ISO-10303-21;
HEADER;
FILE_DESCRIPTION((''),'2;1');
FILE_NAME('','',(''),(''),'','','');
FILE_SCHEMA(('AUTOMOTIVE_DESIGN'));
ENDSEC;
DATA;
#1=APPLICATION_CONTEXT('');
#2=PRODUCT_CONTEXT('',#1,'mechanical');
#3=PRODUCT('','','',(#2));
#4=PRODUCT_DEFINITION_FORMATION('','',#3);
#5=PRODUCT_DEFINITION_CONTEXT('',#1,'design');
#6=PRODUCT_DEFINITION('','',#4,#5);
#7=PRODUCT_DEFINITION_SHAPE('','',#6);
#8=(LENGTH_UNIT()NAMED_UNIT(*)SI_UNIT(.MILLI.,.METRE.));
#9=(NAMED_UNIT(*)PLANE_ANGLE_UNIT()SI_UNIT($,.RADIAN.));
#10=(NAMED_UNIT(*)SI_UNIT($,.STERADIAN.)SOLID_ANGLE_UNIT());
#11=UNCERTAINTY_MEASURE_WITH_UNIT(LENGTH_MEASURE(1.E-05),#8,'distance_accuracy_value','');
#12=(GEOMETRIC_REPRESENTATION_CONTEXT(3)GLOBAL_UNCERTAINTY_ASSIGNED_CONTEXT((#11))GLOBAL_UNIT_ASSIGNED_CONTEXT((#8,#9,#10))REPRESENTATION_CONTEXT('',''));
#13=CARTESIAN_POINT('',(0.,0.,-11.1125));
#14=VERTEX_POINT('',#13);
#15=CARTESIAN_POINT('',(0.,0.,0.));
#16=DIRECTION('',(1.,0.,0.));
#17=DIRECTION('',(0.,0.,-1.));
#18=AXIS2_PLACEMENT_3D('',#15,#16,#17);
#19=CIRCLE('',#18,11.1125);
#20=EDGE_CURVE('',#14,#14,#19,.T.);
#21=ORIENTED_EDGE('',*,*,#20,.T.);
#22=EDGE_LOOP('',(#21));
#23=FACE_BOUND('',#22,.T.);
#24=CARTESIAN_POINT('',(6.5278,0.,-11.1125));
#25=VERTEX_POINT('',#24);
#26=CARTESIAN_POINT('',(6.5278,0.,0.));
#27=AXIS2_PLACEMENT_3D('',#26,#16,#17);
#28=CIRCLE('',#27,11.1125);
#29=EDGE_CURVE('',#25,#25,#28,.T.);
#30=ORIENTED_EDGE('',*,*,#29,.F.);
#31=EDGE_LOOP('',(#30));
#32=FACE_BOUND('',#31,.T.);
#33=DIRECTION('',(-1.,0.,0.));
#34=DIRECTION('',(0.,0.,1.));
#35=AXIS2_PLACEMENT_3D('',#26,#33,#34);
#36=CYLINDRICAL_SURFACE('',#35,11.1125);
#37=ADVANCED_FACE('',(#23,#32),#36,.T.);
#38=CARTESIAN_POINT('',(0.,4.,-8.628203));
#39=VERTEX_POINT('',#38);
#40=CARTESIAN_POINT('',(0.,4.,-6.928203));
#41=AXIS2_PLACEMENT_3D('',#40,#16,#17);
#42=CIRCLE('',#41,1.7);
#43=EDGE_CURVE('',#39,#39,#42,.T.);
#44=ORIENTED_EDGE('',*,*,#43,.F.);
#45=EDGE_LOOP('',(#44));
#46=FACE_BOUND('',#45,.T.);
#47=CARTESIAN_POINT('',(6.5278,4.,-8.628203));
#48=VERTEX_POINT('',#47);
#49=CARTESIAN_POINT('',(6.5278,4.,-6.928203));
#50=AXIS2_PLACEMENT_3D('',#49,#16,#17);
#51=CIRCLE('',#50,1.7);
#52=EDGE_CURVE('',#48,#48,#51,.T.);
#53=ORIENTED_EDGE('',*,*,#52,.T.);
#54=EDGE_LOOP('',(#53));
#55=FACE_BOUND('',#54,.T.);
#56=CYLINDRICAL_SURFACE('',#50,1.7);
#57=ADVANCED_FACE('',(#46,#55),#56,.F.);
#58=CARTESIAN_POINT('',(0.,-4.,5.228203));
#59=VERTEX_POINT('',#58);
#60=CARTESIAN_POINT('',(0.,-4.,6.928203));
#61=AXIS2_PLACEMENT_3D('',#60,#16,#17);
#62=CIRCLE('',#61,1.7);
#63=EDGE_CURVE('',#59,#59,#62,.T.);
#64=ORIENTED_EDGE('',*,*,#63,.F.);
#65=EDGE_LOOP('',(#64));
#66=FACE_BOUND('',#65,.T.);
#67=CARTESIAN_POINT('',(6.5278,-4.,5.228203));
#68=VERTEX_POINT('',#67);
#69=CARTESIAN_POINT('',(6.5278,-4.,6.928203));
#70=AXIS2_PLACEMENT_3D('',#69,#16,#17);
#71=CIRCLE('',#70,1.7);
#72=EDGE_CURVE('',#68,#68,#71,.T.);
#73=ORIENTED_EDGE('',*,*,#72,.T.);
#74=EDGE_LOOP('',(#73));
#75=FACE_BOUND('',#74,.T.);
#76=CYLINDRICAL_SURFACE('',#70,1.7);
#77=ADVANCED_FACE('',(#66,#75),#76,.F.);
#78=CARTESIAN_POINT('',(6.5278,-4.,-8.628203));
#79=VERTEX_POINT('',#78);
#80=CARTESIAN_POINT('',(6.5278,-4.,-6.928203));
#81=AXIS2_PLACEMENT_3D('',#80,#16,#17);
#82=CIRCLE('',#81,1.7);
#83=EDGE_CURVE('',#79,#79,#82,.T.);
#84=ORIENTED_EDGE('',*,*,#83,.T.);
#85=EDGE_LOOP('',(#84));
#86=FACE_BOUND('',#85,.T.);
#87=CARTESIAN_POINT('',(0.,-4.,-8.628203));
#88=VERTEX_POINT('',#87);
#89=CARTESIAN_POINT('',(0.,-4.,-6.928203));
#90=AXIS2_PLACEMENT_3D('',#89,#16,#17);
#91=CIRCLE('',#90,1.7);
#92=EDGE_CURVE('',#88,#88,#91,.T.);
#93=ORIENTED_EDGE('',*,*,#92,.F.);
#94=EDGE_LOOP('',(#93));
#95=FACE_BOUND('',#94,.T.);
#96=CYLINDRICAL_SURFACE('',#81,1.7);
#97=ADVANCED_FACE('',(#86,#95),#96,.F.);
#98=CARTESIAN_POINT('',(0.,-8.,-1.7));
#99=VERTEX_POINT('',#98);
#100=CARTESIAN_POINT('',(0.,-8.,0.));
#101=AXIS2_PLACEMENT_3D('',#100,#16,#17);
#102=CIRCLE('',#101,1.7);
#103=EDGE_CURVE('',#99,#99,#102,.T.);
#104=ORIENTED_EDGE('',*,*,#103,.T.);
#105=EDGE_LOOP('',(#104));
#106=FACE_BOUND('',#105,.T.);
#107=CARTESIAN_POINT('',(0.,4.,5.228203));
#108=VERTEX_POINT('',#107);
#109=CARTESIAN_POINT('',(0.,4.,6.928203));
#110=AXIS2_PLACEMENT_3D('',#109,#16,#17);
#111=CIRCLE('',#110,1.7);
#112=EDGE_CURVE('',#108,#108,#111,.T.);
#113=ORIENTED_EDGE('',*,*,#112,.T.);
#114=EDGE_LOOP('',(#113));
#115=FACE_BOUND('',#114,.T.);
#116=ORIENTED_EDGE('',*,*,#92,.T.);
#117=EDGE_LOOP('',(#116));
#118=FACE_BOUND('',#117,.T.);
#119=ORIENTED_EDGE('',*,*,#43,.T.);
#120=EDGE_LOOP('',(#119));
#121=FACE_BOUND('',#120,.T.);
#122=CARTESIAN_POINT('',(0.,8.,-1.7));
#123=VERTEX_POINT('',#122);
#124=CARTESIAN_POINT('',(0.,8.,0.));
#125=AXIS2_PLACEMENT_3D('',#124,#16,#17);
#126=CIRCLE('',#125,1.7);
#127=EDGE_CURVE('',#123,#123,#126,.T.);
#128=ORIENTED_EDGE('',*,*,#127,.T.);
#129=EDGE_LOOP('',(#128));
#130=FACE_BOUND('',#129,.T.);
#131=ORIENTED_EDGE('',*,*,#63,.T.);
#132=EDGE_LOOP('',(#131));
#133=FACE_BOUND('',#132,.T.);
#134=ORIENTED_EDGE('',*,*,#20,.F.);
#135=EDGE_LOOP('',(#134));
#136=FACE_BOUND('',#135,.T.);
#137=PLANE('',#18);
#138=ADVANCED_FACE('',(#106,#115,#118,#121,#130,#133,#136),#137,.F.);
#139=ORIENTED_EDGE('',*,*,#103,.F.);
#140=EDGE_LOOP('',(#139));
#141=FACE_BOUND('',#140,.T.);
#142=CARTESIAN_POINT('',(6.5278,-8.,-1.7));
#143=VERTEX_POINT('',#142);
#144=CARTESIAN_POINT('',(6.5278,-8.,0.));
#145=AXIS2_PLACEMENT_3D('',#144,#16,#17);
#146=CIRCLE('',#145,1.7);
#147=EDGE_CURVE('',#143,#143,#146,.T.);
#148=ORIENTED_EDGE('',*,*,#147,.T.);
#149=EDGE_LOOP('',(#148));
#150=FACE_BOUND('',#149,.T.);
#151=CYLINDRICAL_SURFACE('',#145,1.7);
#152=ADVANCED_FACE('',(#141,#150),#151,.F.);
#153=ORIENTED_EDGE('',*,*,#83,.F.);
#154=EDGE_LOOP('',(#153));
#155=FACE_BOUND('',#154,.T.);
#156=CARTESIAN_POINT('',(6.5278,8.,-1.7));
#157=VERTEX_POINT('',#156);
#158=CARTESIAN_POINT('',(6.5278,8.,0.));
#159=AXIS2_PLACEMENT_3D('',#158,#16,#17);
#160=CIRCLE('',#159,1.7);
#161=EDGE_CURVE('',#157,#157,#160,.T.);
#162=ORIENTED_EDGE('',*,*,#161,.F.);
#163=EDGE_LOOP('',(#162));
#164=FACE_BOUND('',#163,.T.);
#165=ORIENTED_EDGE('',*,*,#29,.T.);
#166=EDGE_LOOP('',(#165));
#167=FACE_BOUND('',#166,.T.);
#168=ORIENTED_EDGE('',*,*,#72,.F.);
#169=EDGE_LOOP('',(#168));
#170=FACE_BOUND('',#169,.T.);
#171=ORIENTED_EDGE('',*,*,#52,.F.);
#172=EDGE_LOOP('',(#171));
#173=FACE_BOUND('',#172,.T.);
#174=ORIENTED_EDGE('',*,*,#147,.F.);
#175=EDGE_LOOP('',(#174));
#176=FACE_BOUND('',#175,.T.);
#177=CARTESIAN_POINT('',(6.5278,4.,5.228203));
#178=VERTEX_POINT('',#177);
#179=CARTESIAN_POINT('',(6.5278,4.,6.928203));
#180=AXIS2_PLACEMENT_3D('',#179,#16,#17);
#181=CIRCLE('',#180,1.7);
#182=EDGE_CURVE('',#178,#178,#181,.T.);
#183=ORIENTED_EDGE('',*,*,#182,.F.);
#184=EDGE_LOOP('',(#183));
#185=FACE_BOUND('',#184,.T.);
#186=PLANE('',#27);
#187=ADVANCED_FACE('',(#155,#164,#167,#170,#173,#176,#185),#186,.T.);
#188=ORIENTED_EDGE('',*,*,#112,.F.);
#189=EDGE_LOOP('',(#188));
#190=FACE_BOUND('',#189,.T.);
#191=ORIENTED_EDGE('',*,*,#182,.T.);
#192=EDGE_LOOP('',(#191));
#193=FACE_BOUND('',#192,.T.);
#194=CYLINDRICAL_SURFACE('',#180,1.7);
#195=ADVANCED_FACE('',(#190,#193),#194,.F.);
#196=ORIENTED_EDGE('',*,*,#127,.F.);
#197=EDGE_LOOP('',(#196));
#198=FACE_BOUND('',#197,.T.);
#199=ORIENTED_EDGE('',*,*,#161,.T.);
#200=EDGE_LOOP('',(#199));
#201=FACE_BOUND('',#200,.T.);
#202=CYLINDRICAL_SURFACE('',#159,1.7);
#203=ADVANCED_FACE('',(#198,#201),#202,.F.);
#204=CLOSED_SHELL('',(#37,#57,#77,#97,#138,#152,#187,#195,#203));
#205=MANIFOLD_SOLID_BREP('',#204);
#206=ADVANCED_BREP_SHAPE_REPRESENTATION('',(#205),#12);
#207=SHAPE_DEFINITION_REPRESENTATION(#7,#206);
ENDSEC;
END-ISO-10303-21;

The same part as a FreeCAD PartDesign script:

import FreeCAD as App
import Part
import Sketcher
Q = App.Units.Quantity

doc = App.newDocument("Part")
body = doc.addObject("PartDesign::Body", "Body")

sketch1 = body.newObject("Sketcher::SketchObject", "Sketch")
sketch1.AttachmentSupport = (doc.getObject("YZ_Plane"), [""])
sketch1.MapMode = "FlatFace"
sketch1.addGeometry(Part.Circle(App.Vector(0, 0, 0), App.Vector(0, 0, 1), 11), False)
sketch1.addConstraint([
    Sketcher.Constraint("Coincident", 0, 3, -1, 1),
    Sketcher.Constraint("Diameter", 0, Q("0.875 in")),
])
pad1 = body.newObject("PartDesign::Pad", "Pad")
pad1.Profile = sketch1
pad1.Length = Q("0.257 in")

sketch2 = body.newObject("Sketcher::SketchObject", "Sketch001")
sketch2.AttachmentSupport = (doc.getObject("YZ_Plane"), [""])
sketch2.MapMode = "FlatFace"
sketch2.AttachmentOffset = App.Placement(App.Vector(0, 0, 0.257 * 25.4), App.Rotation())
sketch2.addGeometry([
    Part.Circle(App.Vector(8, 0, 0), App.Vector(0, 0, 1), 1.7),
    Part.Circle(App.Vector(4, -6.9, 0), App.Vector(0, 0, 1), 1.7),
    Part.Circle(App.Vector(-4, -6.9, 0), App.Vector(0, 0, 1), 1.7),
    Part.Circle(App.Vector(-8, 0, 0), App.Vector(0, 0, 1), 1.7),
    Part.Circle(App.Vector(-4, 6.9, 0), App.Vector(0, 0, 1), 1.7),
    Part.Circle(App.Vector(4, 6.9, 0), App.Vector(0, 0, 1), 1.7),
], False)
sketch2.addConstraint([
    Sketcher.Constraint("Equal", 0, 1),
    Sketcher.Constraint("Equal", 1, 2),
    Sketcher.Constraint("Equal", 2, 3),
    Sketcher.Constraint("Equal", 3, 4),
    Sketcher.Constraint("Equal", 4, 5),
    Sketcher.Constraint("Symmetric", 0, 3, 3, 3, -1, 1),
    Sketcher.Constraint("Symmetric", 1, 3, 4, 3, -1, 1),
    Sketcher.Constraint("Symmetric", 2, 3, 5, 3, -1, 1),
    Sketcher.Constraint("Symmetric", 1, 3, 2, 3, -2),
    Sketcher.Constraint("PointOnObject", 0, 3, -1),
    Sketcher.Constraint("Diameter", 0, 3.4),
    Sketcher.Constraint("DistanceX", -1, 1, 0, 3, 8.0),
    Sketcher.Constraint("DistanceX", -1, 1, 1, 3, 4.0),
    Sketcher.Constraint("DistanceY", 1, 3, -1, 1, 6.928203),
])
doc.recompute()
hole = body.newObject("PartDesign::Hole", "Hole")
hole.Profile = sketch2
hole.ThreadType = "None"
hole.Diameter = 3.4
hole.DepthType = "ThroughAll"

doc.recompute()
